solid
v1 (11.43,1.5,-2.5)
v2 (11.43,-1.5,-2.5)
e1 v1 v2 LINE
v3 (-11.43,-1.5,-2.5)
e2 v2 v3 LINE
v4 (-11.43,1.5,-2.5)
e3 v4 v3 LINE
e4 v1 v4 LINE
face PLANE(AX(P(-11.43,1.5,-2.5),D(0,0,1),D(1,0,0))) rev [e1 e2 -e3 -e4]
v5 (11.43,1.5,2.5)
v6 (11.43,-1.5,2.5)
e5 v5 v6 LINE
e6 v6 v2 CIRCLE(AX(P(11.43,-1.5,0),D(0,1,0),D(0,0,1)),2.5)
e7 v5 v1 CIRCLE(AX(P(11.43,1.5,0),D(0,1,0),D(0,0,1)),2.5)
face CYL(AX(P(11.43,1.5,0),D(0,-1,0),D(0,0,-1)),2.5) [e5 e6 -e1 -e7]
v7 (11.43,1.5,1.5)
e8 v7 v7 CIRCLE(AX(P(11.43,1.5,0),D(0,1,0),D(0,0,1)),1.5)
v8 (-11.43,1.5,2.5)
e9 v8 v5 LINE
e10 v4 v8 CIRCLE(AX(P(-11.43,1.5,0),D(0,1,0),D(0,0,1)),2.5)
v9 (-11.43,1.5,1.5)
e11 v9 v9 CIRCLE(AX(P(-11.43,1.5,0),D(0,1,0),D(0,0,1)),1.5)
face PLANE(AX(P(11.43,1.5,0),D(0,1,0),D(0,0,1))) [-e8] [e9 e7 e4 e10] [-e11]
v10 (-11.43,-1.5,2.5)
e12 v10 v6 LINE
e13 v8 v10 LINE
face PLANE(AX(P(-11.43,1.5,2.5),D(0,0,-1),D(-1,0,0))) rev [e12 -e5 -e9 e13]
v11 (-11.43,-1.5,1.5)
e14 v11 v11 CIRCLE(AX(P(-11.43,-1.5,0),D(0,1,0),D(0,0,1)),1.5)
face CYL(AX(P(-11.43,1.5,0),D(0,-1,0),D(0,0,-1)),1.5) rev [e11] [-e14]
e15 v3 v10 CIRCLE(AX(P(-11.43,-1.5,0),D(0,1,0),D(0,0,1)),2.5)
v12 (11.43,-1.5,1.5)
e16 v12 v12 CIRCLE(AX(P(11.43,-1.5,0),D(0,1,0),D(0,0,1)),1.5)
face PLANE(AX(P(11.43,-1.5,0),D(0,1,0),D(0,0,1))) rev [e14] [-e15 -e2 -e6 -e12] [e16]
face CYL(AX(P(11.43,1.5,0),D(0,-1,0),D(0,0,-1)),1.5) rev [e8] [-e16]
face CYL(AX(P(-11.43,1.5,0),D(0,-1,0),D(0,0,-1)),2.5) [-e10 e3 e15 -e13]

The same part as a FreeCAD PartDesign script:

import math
import FreeCAD as App
import Part
import Sketcher

V = App.Vector
Q = App.Units.Quantity

doc = App.newDocument("Part")
params = doc.addObject("Spreadsheet::Sheet", "Params")
for row, (alias, value) in enumerate([
    ("sketch1_diameter", "3 mm"),
    ("sketch1_radius", "2.5 mm"),
    ("sketch1_width", "22.86 mm"),
    ("pad1_length", "3 mm"),
], start=1):
    params.set(f"A{row}", alias)
    params.set(f"B{row}", "=" + value)
    params.setAlias(f"B{row}", alias)

body = doc.addObject("PartDesign::Body", "Body")

# Sketch on XZ plane
sketch1 = body.newObject("Sketcher::SketchObject", "Sketch")
sketch1.AttachmentSupport = (doc.getObject("XZ_Plane"), [""])
sketch1.MapMode = "FlatFace"
sketch1.addGeometry([
    Part.LineSegment(V(11.43, -2.5, 0), V(-11.43, -2.5, 0)),  # 0
    Part.ArcOfCircle(Part.Circle(V(-11.43, 0, 0), V(0, 0, 1), 2.5), math.radians(90), math.radians(270)),  # 1
    Part.LineSegment(V(-11.43, 2.5, 0), V(11.43, 2.5, 0)),  # 2
    Part.ArcOfCircle(Part.Circle(V(11.43, 0, 0), V(0, 0, 1), 2.5), math.radians(-90), math.radians(90)),  # 3
    Part.Circle(V(11.43, 0, 0), V(0, 0, 1), 1.5),  # 4
    Part.Circle(V(-11.43, 0, 0), V(0, 0, 1), 1.5),  # 5
], False)
sketch1.addConstraint([
    Sketcher.Constraint("Tangent", 0, 2, 1, 2),
    Sketcher.Constraint("Tangent", 1, 1, 2, 1),
    Sketcher.Constraint("Tangent", 2, 2, 3, 2),
    Sketcher.Constraint("Tangent", 3, 1, 0, 1),
    Sketcher.Constraint("Horizontal", 0),
    Sketcher.Constraint("Horizontal", 2),
    Sketcher.Constraint("Coincident", 4, 3, 3, 3),
    Sketcher.Constraint("Coincident", 5, 3, 1, 3),
    Sketcher.Constraint("Equal", 4, 5),
    Sketcher.Constraint("Symmetric", 1, 3, 3, 3, -1, 1),
    Sketcher.Constraint("Diameter", 4, Q("3 mm")),
    Sketcher.Constraint("Radius", 1, Q("2.5 mm")),
    Sketcher.Constraint("DistanceX", 0, 2, 0, 1, Q("22.86 mm")),
])
sketch1.setExpression("Constraints[10]", "Params.sketch1_diameter")
sketch1.setExpression("Constraints[11]", "Params.sketch1_radius")
sketch1.setExpression("Constraints[12]", "Params.sketch1_width")
pad1 = body.newObject("PartDesign::Pad", "Pad")
pad1.Profile = sketch1
pad1.setExpression("Length", "Params.pad1_length")
pad1.Midplane = True

doc.recompute()
